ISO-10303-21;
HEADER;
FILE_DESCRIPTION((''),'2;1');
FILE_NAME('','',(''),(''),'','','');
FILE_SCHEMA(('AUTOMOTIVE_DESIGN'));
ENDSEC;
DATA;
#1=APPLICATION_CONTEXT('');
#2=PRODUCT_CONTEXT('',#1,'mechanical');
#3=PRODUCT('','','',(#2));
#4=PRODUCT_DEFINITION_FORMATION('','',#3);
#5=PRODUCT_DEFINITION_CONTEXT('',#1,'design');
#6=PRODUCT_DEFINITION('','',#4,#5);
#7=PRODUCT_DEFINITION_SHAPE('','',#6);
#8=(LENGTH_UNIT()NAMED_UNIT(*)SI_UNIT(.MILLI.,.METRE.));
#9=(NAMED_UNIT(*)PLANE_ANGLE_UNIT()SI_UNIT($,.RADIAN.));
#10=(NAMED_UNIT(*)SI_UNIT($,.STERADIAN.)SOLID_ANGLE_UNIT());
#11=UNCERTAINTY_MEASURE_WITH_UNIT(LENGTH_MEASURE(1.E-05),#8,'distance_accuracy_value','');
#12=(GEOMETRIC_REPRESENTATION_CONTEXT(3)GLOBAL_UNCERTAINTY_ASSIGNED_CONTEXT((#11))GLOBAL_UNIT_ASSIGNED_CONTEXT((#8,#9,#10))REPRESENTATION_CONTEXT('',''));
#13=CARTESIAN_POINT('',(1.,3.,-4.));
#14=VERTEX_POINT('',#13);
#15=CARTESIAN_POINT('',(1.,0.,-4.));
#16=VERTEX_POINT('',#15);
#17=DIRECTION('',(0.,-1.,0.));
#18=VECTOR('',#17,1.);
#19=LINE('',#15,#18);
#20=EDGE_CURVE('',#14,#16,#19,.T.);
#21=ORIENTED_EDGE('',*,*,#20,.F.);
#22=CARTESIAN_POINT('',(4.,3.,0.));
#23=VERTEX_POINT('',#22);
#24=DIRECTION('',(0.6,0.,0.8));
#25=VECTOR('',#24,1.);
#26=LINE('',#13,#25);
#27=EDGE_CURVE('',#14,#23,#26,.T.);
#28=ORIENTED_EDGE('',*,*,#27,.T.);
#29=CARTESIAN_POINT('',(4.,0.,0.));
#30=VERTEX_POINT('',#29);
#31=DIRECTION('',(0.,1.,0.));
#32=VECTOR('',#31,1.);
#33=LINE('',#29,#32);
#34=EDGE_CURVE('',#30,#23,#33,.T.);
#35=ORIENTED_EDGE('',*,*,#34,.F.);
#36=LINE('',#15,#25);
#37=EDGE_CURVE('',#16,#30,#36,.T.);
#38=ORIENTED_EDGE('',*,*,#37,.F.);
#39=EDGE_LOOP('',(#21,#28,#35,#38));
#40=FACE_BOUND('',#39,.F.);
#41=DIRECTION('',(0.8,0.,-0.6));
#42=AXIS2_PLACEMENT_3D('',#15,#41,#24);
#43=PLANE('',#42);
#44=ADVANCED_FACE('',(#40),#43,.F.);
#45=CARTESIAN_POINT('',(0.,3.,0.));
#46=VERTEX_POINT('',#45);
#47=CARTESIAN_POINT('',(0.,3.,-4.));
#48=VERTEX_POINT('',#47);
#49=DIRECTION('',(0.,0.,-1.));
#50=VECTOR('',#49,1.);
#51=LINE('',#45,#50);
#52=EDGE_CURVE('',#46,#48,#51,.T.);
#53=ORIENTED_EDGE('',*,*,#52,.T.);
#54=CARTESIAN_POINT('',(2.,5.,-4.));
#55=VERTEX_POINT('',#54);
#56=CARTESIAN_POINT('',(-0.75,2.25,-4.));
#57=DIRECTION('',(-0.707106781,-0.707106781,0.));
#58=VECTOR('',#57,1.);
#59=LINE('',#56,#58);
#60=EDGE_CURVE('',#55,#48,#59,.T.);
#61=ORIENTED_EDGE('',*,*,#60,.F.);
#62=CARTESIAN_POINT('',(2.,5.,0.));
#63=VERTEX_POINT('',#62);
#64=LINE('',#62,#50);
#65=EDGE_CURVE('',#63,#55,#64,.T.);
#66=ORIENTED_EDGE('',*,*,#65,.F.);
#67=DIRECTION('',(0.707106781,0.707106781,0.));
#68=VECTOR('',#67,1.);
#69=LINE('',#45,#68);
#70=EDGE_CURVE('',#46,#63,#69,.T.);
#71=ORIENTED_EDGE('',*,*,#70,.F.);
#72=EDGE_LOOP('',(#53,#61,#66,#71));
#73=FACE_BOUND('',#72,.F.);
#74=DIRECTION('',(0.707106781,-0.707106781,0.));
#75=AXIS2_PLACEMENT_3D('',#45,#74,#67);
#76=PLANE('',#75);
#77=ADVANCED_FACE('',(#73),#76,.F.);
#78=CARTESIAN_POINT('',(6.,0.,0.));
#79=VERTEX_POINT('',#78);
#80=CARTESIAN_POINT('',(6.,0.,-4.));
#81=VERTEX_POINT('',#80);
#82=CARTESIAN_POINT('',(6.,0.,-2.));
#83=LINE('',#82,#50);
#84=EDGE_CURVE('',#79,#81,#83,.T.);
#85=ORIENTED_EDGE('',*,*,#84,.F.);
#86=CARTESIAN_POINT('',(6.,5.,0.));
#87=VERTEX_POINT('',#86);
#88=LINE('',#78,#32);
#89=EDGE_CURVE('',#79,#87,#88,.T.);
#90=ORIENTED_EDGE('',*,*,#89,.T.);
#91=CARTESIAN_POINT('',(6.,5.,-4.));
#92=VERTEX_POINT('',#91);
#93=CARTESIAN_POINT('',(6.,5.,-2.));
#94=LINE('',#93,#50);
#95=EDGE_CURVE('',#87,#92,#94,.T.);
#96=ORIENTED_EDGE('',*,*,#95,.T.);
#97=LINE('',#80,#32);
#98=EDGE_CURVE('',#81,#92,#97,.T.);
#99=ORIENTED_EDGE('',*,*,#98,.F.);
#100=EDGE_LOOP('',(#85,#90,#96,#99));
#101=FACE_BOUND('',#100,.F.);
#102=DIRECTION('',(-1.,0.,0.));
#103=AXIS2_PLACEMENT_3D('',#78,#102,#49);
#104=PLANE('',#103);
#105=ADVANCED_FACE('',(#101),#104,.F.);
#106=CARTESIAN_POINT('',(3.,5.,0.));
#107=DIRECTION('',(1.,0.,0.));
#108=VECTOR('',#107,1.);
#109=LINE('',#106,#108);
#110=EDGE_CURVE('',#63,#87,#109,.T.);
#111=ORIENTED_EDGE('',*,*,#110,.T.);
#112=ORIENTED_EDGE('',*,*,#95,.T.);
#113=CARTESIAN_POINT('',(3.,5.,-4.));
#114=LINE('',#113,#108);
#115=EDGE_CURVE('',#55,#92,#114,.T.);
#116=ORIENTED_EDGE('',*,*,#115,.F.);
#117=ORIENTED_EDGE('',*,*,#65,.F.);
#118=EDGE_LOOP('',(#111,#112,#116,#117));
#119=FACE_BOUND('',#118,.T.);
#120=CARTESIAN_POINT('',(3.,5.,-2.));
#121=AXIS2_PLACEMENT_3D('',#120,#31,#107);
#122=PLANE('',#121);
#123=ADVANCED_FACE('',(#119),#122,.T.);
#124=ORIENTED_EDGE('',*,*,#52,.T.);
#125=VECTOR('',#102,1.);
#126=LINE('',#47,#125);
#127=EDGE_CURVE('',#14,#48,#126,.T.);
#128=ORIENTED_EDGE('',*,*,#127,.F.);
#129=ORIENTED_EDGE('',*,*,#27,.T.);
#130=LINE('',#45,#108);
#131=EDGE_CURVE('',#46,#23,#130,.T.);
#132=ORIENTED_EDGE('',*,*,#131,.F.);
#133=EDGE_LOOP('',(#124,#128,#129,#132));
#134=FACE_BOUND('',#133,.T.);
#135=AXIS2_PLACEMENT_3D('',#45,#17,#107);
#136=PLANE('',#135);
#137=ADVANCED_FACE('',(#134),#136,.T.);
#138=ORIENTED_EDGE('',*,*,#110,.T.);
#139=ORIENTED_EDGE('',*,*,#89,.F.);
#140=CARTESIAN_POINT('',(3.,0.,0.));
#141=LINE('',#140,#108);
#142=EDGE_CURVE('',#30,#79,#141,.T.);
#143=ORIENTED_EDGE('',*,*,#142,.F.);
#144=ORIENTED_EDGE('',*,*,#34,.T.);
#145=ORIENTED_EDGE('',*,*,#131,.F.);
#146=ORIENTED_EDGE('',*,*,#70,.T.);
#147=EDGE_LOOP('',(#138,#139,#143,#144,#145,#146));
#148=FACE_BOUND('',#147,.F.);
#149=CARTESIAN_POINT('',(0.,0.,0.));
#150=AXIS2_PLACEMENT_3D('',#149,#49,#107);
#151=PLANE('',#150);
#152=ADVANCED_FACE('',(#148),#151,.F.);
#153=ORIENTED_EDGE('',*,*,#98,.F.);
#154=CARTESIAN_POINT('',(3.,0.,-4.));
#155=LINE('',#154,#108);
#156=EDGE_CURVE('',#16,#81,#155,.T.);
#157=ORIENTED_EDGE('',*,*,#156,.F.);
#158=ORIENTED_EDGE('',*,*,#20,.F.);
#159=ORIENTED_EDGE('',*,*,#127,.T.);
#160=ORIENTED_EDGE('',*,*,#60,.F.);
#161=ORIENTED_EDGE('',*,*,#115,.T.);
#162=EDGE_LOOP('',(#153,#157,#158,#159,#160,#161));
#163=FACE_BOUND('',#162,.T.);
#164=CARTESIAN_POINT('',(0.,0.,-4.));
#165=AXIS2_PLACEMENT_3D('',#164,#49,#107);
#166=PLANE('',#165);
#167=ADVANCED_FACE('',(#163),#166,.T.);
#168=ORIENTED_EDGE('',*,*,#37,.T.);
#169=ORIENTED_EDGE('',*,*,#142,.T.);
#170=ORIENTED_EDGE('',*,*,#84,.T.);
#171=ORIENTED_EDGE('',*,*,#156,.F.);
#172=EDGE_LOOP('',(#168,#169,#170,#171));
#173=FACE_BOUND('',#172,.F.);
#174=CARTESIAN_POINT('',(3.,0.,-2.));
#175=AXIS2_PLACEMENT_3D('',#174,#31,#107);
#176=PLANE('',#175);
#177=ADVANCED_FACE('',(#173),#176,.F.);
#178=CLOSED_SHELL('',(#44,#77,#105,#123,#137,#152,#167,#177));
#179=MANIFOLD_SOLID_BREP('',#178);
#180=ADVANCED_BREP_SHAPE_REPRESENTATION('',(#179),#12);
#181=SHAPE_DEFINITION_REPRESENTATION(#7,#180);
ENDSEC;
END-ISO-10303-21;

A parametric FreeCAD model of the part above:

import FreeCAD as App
import Part
import Sketcher
from FreeCAD import Vector
Q = App.Units.Quantity


def add_polygon(sketch, points):
    """Adds a closed chain of lines whose ends are joined by coincident constraints."""
    first, n = sketch.GeometryCount, len(points)
    for a, b in zip(points, points[1:] + points[:1]):
        sketch.addGeometry(Part.LineSegment(App.Vector(*a, 0), App.Vector(*b, 0)), False)
    for i in range(n):
        sketch.addConstraint(Sketcher.Constraint("Coincident", first + i, 2, first + (i + 1) % n, 1))

doc = App.newDocument("Part")
body = doc.addObject("PartDesign::Body", "Body")

# Sketch on XZ plane
sketch1 = body.newObject("Sketcher::SketchObject", "Sketch")
sketch1.AttachmentSupport = (doc.getObject("XZ_Plane"), [""])
sketch1.MapMode = "FlatFace"
add_polygon(sketch1, [(0, -4), (0, 0), (6, 0), (6, -4)])  # lines 0-3
sketch1.addConstraint([
    Sketcher.Constraint("Vertical", 0),
    Sketcher.Constraint("Horizontal", 1),
    Sketcher.Constraint("Vertical", 2),
    Sketcher.Constraint("Horizontal", 3),
    Sketcher.Constraint("Coincident", 0, 2, -1, 1),
    Sketcher.Constraint("DistanceX", 1, 1, 1, 2, Q("6 mm")),
    Sketcher.Constraint("DistanceY", 0, 1, 0, 2, Q("4 mm")),
])
pad1 = body.newObject("PartDesign::Pad", "Pad")
pad1.Profile = sketch1
pad1.Length = 5
pad1.Reversed = True

# Sketch on XY plane
sketch2 = body.newObject("Sketcher::SketchObject", "Sketch001")
sketch2.AttachmentSupport = (doc.getObject("XY_Plane"), [""])
sketch2.MapMode = "FlatFace"
add_polygon(sketch2, [(0, 5), (0, 3), (2, 5)])  # lines 0-2
add_polygon(sketch2, [(0, 3), (0, 0), (1, 0), (1, 3)])  # lines 3-6
sketch2.addConstraint([
    Sketcher.Constraint("Vertical", 0),
    Sketcher.Constraint("Horizontal", 2),
    Sketcher.Constraint("Vertical", 3),
    Sketcher.Constraint("Horizontal", 4),
    Sketcher.Constraint("Vertical", 5),
    Sketcher.Constraint("Horizontal", 6),
    Sketcher.Constraint("Coincident", 3, 2, -1, 1),
    Sketcher.Constraint("Coincident", 6, 2, 0, 2),
    Sketcher.Constraint("Equal", 2, 0),
    Sketcher.Constraint("DistanceX", 2, 2, 2, 1, Q("2 mm")),
    Sketcher.Constraint("DistanceX", 4, 1, 4, 2, Q("1 mm")),
    Sketcher.Constraint("DistanceY", 3, 2, 3, 1, Q("3 mm")),
])
pocket1 = body.newObject("PartDesign::Pocket", "Pocket")
pocket1.Profile = sketch2
pocket1.Length = 5

# Sketch on XZ plane
sketch3 = body.newObject("Sketcher::SketchObject", "Sketch002")
sketch3.AttachmentSupport = (doc.getObject("XZ_Plane"), [""])
sketch3.MapMode = "FlatFace"
add_polygon(sketch3, [(1, -4), (4, 0), (1, 0)])  # lines 0-2
sketch3.addConstraint([
    Sketcher.Constraint("Horizontal", 1),
    Sketcher.Constraint("Vertical", 2),
    Sketcher.Constraint("PointOnObject", 0, 2, -1),
    Sketcher.Constraint("DistanceX", 1, 2, 1, 1, Q("3 mm")),
    Sketcher.Constraint("DistanceY", 2, 2, 2, 1, Q("4 mm")),
    Sketcher.Constraint("DistanceX", -1, 1, 0, 2, Q("4 mm")),
])
pocket2 = body.newObject("PartDesign::Pocket", "Pocket001")
pocket2.Profile = sketch3
pocket2.Length = 3

doc.recompute()
